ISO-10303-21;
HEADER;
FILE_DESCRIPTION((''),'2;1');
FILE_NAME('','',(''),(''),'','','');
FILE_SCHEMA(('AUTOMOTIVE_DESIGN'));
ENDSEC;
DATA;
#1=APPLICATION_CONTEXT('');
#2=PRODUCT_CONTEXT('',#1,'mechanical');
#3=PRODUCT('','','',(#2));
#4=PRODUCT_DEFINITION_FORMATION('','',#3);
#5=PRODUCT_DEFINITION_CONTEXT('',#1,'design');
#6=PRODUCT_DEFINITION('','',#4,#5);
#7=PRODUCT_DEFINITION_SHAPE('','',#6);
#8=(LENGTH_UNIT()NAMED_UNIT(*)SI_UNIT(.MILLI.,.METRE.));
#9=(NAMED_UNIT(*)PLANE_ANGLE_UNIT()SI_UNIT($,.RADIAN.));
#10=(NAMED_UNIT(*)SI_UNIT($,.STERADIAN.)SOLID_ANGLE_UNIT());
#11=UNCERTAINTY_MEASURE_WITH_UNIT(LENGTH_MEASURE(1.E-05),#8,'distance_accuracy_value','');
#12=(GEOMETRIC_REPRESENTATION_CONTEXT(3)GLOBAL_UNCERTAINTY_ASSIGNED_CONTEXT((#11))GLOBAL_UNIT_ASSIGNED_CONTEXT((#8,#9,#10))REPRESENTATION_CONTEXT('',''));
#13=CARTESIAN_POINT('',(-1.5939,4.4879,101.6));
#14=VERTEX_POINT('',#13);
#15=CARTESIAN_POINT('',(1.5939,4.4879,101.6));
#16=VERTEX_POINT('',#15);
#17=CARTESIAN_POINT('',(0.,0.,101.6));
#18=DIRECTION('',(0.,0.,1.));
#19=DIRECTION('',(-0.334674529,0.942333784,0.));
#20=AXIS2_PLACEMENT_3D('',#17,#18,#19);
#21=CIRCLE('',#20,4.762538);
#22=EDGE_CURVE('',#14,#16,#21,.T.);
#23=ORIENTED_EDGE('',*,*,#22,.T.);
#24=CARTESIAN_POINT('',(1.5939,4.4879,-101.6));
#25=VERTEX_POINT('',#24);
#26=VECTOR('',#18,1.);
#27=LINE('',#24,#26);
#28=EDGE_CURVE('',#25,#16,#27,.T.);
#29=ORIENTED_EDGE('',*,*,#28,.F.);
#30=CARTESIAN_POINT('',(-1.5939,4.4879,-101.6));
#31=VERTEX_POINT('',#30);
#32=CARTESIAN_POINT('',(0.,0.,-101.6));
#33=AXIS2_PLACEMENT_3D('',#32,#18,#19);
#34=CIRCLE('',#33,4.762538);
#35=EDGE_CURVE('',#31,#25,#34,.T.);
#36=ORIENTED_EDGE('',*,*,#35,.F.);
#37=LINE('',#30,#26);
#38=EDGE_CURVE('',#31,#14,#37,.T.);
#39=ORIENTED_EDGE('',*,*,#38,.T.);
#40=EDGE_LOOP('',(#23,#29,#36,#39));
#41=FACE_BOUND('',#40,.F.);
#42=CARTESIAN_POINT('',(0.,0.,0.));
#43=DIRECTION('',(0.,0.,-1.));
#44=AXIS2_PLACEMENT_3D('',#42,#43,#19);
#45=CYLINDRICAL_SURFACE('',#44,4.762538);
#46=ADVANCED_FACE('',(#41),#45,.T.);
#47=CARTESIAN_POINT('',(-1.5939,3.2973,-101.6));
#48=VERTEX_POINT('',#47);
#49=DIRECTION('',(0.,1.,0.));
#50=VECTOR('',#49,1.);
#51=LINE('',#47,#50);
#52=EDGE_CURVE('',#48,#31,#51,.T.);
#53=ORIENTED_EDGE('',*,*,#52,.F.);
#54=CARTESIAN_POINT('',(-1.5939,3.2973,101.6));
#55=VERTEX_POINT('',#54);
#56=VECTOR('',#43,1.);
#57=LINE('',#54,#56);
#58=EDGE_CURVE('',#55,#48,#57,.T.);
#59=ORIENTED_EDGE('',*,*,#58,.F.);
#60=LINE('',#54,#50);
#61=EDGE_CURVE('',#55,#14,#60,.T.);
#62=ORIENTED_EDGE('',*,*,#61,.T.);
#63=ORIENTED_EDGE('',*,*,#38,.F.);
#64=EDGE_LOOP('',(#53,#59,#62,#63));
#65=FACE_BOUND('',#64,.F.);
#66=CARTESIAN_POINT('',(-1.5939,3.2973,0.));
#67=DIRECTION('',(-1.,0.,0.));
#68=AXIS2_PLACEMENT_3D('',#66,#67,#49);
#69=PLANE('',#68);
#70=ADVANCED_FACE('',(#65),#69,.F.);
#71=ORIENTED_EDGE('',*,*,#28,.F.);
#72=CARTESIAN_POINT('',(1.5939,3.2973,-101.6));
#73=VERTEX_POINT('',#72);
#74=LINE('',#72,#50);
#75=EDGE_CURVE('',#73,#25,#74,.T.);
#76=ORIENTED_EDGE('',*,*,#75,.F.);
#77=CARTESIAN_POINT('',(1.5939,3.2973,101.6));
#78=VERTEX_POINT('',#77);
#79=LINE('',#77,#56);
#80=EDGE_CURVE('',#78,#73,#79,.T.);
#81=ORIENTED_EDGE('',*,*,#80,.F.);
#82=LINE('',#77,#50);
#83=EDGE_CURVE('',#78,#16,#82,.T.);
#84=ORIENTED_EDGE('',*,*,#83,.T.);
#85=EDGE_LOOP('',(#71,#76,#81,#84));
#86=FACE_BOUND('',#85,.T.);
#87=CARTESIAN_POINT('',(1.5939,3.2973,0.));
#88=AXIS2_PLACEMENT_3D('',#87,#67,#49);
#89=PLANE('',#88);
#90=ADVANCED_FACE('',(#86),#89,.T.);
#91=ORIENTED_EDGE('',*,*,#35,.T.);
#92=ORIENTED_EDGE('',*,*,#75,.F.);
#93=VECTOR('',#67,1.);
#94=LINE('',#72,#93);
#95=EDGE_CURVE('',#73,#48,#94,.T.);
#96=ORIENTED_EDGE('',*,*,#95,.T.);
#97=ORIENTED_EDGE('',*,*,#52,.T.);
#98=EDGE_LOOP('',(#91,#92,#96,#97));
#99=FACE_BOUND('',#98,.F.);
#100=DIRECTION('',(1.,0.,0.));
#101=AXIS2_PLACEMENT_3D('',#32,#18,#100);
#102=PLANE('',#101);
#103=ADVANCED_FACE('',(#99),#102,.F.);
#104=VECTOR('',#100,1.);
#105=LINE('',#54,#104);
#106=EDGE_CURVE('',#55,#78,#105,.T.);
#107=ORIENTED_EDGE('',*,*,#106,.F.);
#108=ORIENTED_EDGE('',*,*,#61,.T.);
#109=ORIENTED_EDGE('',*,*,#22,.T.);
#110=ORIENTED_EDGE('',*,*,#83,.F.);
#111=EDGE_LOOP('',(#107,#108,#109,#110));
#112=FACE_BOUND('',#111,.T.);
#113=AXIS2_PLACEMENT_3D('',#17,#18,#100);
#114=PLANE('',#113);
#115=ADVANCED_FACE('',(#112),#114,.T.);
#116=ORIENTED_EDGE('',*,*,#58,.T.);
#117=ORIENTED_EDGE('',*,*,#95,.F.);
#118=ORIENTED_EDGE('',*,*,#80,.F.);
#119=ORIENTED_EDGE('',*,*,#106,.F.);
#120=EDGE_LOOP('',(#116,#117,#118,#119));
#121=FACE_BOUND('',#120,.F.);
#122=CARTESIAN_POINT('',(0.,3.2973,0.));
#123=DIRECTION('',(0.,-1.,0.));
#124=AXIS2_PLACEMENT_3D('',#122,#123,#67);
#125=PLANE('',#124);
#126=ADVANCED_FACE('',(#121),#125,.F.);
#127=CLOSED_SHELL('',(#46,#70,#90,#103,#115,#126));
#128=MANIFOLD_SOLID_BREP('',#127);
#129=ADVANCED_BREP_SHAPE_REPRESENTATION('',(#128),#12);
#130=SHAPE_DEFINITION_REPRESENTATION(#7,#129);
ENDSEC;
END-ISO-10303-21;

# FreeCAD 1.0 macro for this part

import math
import FreeCAD as App
import Part
import Sketcher

V = App.Vector
Q = App.Units.Quantity

doc = App.newDocument("Part")
body = doc.addObject("PartDesign::Body", "Body")

# Sketch on XY plane
sketch1 = doc.addObject("Sketcher::SketchObject", "Sketch")
body.addObject(sketch1)
sketch1.AttachmentSupport = (doc.XY_Plane, [""])
sketch1.MapMode = "FlatFace"
sketch1.addGeometry([
    Part.LineSegment(V(-1.6, 3.3, 0), V(-1.6, 4.5, 0)),
    Part.ArcOfCircle(Part.Circle(V(0, 0, 0), V(0, 0, 1), 4.8), math.radians(110), math.radians(430)),
    Part.LineSegment(V(1.6, 4.5, 0), V(1.6, 3.3, 0)),
    Part.LineSegment(V(1.6, 3.3, 0), V(-1.6, 3.3, 0)),
], False)
sketch1.addConstraint([
    Sketcher.Constraint("Coincident", 0, 2, 1, 1),
    Sketcher.Constraint("Coincident", 1, 2, 2, 1),
    Sketcher.Constraint("Coincident", 2, 2, 3, 1),
    Sketcher.Constraint("Coincident", 3, 2, 0, 1),
    Sketcher.Constraint("Vertical", 0),
    Sketcher.Constraint("Vertical", 2),
    Sketcher.Constraint("Horizontal", 3),
    Sketcher.Constraint("Coincident", 1, 3, -1, 1),
    Sketcher.Constraint("Horizontal", 0, 2, 1, 2),
    Sketcher.Constraint("Radius", 1, Q("0.1875 in")),
    Sketcher.Constraint("DistanceY", 0, 1, 0, 2, Q("0.046874 in")),
    Sketcher.Constraint("DistanceX", 0, 2, -1, 1, Q("1.594 mm")),
])
pad1 = doc.addObject("PartDesign::Pad", "Pad")
body.addObject(pad1)
pad1.Profile = sketch1
pad1.Length = Q("8 in")
pad1.Midplane = True

doc.recompute()
